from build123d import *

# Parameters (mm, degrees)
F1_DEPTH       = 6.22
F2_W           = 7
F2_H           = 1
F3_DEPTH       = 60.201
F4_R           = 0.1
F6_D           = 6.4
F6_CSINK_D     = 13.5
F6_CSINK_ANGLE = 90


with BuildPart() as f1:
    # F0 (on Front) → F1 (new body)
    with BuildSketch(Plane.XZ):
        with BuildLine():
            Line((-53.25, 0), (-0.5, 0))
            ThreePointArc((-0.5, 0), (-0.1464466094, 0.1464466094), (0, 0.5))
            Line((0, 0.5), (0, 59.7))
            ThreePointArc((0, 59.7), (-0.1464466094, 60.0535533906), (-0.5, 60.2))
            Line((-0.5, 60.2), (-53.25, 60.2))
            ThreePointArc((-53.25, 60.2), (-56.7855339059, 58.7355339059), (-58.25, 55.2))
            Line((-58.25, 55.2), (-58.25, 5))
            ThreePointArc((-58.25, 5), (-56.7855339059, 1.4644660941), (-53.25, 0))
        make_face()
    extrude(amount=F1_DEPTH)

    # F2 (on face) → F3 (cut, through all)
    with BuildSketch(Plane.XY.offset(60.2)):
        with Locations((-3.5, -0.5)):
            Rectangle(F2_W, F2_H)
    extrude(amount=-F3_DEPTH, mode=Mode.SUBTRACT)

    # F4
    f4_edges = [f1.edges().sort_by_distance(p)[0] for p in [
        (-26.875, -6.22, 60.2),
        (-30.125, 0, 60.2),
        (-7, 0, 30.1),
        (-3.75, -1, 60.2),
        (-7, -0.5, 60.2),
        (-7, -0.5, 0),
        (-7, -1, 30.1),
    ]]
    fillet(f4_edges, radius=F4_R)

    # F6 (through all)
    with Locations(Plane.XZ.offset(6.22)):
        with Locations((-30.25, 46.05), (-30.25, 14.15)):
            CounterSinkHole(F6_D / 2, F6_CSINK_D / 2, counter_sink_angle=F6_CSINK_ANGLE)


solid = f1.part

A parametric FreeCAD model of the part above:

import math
import FreeCAD as App
import Part
import Sketcher
from FreeCAD import Vector


def edges_at(feature, points):
    """Names of the edges that pass closest to the given points."""
    edges = feature.Shape.Edges
    near = lambda p: min(range(len(edges)), key=lambda i: edges[i].distToShape(Part.Vertex(*p))[0])
    return sorted({f"Edge{near(p) + 1}" for p in points})


def add_polygon(sketch, points):
    """Adds a closed chain of lines whose ends are joined by coincident constraints."""
    first, n = sketch.GeometryCount, len(points)
    for a, b in zip(points, points[1:] + points[:1]):
        sketch.addGeometry(Part.LineSegment(App.Vector(*a, 0), App.Vector(*b, 0)), False)
    for i in range(n):
        sketch.addConstraint(Sketcher.Constraint("Coincident", first + i, 2, first + (i + 1) % n, 1))

doc = App.newDocument("Part")
params = doc.addObject("Spreadsheet::Sheet", "Params")
for row, (alias, value) in enumerate([
    ("sketch1_radius", "5 mm"),
    ("sketch1_radius2", "0.5 mm"),
    ("sketch1_height", "59.2 mm"),
    ("sketch1_width", "52.75 mm"),
    ("pad1_length", "6.22 mm"),
    ("sketch2_width", "7 mm"),
    ("sketch2_height", "1 mm"),
    ("fillet_radius", "0.1 mm"),
    ("sketch3_diameter", "6.4 mm"),
    ("hole_diameter", "6.4 mm"),
    ("hole_csink_diameter", "13.5 mm"),
], start=1):
    params.set(f"A{row}", alias)
    params.set(f"B{row}", "=" + value)
    params.setAlias(f"B{row}", alias)

body = doc.addObject("PartDesign::Body", "Body")

# Sketch on XZ plane
sketch1 = doc.addObject("Sketcher::SketchObject", "Sketch")
body.addObject(sketch1)
sketch1.AttachmentSupport = (doc.XZ_Plane, [""])
sketch1.MapMode = "FlatFace"
sketch1.addGeometry(Part.LineSegment(Vector(-53.2, 0, 0), Vector(-0.5, 0, 0)), False)
sketch1.addGeometry(Part.ArcOfCircle(Part.Circle(Vector(-0.5, 0.5, 0), Vector(0, 0, 1), 0.5), math.radians(-90), math.radians(0)), False)
sketch1.addGeometry(Part.LineSegment(Vector(0, 0.5, 0), Vector(0, 59.7, 0)), False)
sketch1.addGeometry(Part.ArcOfCircle(Part.Circle(Vector(-0.5, 59.7, 0), Vector(0, 0, 1), 0.5), math.radians(0), math.radians(90)), False)
sketch1.addGeometry(Part.LineSegment(Vector(-0.5, 60.2, 0), Vector(-53.2, 60.2, 0)), False)
sketch1.addGeometry(Part.ArcOfCircle(Part.Circle(Vector(-53.2, 55.2, 0), Vector(0, 0, 1), 5), math.radians(90), math.radians(180)), False)
sketch1.addGeometry(Part.LineSegment(Vector(-58.2, 55.2, 0), Vector(-58.2, 5, 0)), False)
sketch1.addGeometry(Part.ArcOfCircle(Part.Circle(Vector(-53.2, 5, 0), Vector(0, 0, 1), 5), math.radians(180), math.radians(270)), False)
sketch1.addConstraint(Sketcher.Constraint("Tangent", 0, 2, 1, 1))
sketch1.addConstraint(Sketcher.Constraint("Tangent", 1, 2, 2, 1))
sketch1.addConstraint(Sketcher.Constraint("Tangent", 2, 2, 3, 1))
sketch1.addConstraint(Sketcher.Constraint("Tangent", 3, 2, 4, 1))
sketch1.addConstraint(Sketcher.Constraint("Tangent", 4, 2, 5, 1))
sketch1.addConstraint(Sketcher.Constraint("Tangent", 5, 2, 6, 1))
sketch1.addConstraint(Sketcher.Constraint("Tangent", 6, 2, 7, 1))
sketch1.addConstraint(Sketcher.Constraint("Tangent", 7, 2, 0, 1))
sketch1.addConstraint(Sketcher.Constraint("Horizontal", 0))
sketch1.addConstraint(Sketcher.Constraint("Vertical", 2))
sketch1.addConstraint(Sketcher.Constraint("Horizontal", 4))
sketch1.addConstraint(Sketcher.Constraint("Vertical", 6))
sketch1.addConstraint(Sketcher.Constraint("Equal", 1, 3))
sketch1.addConstraint(Sketcher.Constraint("Equal", 5, 7))
sketch1.addConstraint(Sketcher.Constraint("PointOnObject", 0, 2, -1))
sketch1.addConstraint(Sketcher.Constraint("PointOnObject", 1, 2, -2))
sketch1.addConstraint(Sketcher.Constraint("Radius", 5, 5.0))
sketch1.addConstraint(Sketcher.Constraint("Radius", 1, 0.5))
sketch1.addConstraint(Sketcher.Constraint("DistanceY", 2, 1, 2, 2, 59.2))
sketch1.addConstraint(Sketcher.Constraint("DistanceX", 0, 1, 0, 2, 52.75))
sketch1.setExpression("Constraints[16]", "Params.sketch1_radius")
sketch1.setExpression("Constraints[17]", "Params.sketch1_radius2")
sketch1.setExpression("Constraints[18]", "Params.sketch1_height")
sketch1.setExpression("Constraints[19]", "Params.sketch1_width")
pad1 = doc.addObject("PartDesign::Pad", "Pad")
body.addObject(pad1)
pad1.Profile = sketch1
pad1.setExpression("Length", "Params.pad1_length")

# Sketch on XY plane
sketch2 = doc.addObject("Sketcher::SketchObject", "Sketch001")
body.addObject(sketch2)
sketch2.AttachmentSupport = (doc.XY_Plane, [""])
sketch2.MapMode = "FlatFace"
sketch2.AttachmentOffset = App.Placement(Vector(0, 0, 60.2), App.Rotation())
add_polygon(sketch2, [(-7, 0), (-7, -1), (0, -1), (0, 0)])  # lines 0-3
sketch2.addConstraint(Sketcher.Constraint("Vertical", 0))
sketch2.addConstraint(Sketcher.Constraint("Horizontal", 1))
sketch2.addConstraint(Sketcher.Constraint("Vertical", 2))
sketch2.addConstraint(Sketcher.Constraint("Horizontal", 3))
sketch2.addConstraint(Sketcher.Constraint("Coincident", 2, 2, -1, 1))
sketch2.addConstraint(Sketcher.Constraint("DistanceX", 1, 1, 1, 2, 7.0))
sketch2.addConstraint(Sketcher.Constraint("DistanceY", 0, 2, 0, 1, 1.0))
sketch2.setExpression("Constraints[9]", "Params.sketch2_width")
sketch2.setExpression("Constraints[10]", "Params.sketch2_height")
pocket1 = doc.addObject("PartDesign::Pocket", "Pocket")
body.addObject(pocket1)
pocket1.Profile = sketch2
pocket1.Type = "ThroughAll"
doc.recompute()

fillet = doc.addObject("PartDesign::Fillet", "Fillet")
body.addObject(fillet)
fillet.Base = (pocket1, edges_at(pocket1, [
    (-26.875, -6.22, 60.2),
    (-30.125, 0, 60.2),
    (-7, 0, 30.1),
    (-3.75, -1, 60.2),
    (-7, -0.5, 60.2),
    (-7, -0.5, 0),
    (-7, -1, 30.1),
]))
fillet.setExpression("Radius", "Params.fillet_radius")

# Sketch on XZ plane
sketch3 = doc.addObject("Sketcher::SketchObject", "Sketch002")
body.addObject(sketch3)
sketch3.AttachmentSupport = (doc.XZ_Plane, [""])
sketch3.MapMode = "FlatFace"
sketch3.AttachmentOffset = App.Placement(Vector(0, 0, 6.22), App.Rotation())
sketch3.addGeometry(Part.Circle(Vector(-30.2, 46, 0), Vector(0, 0, 1), 3.2), False)
sketch3.addGeometry(Part.Circle(Vector(-30.2, 14.2, 0), Vector(0, 0, 1), 3.2), False)
sketch3.addConstraint(Sketcher.Constraint("Equal", 0, 1))
sketch3.addConstraint(Sketcher.Constraint("Vertical", 0, 3, 1, 3))
sketch3.addConstraint(Sketcher.Constraint("Diameter", 0, 6.4))
sketch3.addConstraint(Sketcher.Constraint("DistanceY", 1, 3, 0, 3, 31.9))
sketch3.addConstraint(Sketcher.Constraint("DistanceX", 0, 3, -1, 1, 30.25))
sketch3.addConstraint(Sketcher.Constraint("DistanceY", -1, 1, 0, 3, 46.05))
sketch3.setExpression("Constraints[2]", "Params.sketch3_diameter")
doc.recompute()
hole = doc.addObject("PartDesign::Hole", "Hole")
body.addObject(hole)
hole.Profile = sketch3
hole.ThreadType = "None"
hole.setExpression("Diameter", "Params.hole_diameter")
hole.DepthType = "ThroughAll"
hole.HoleCutType = "Countersink"
hole.setExpression("HoleCutDiameter", "Params.hole_csink_diameter")
hole.HoleCutCountersinkAngle = 90

doc.recompute()
